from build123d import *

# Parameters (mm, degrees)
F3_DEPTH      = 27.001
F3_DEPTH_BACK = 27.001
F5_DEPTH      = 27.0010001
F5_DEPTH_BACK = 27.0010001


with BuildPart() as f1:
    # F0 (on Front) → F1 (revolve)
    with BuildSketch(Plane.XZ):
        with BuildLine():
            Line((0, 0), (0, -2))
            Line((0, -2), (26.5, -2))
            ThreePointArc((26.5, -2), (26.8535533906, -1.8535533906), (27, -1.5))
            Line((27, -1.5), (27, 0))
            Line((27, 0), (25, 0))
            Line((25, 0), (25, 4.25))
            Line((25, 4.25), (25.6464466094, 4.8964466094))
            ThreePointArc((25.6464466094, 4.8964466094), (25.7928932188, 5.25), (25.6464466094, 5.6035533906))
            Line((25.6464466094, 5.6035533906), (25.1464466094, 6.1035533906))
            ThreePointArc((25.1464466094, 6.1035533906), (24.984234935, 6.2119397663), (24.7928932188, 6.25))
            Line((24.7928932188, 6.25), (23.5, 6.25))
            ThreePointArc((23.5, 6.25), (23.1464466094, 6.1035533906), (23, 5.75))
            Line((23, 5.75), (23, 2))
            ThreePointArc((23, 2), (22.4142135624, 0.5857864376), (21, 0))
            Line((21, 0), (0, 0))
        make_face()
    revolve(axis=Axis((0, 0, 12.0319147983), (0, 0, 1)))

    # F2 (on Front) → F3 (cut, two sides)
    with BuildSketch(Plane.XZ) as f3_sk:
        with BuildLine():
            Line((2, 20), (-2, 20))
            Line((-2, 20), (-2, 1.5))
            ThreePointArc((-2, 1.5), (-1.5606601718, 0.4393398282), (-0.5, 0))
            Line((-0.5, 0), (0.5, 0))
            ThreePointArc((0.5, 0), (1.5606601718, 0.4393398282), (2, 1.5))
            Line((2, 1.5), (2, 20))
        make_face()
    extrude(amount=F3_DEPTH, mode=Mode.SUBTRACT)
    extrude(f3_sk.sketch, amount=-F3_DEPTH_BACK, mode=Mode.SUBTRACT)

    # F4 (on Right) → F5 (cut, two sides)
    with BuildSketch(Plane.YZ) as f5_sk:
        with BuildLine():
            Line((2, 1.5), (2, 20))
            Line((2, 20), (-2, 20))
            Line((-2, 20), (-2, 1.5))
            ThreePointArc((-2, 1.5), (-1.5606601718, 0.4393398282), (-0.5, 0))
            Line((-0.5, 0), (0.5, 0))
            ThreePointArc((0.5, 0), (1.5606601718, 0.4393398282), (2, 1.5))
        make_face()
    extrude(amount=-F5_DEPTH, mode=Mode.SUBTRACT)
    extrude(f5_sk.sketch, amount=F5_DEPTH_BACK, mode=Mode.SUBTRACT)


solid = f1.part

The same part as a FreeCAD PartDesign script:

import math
import FreeCAD as App
import Part
import Sketcher
from FreeCAD import Vector

doc = App.newDocument("Part")
body = doc.addObject("PartDesign::Body", "Body")

sketch1 = body.newObject("Sketcher::SketchObject", "Sketch")
sketch1.AttachmentSupport = (doc.getObject("XZ_Plane"), [""])
sketch1.MapMode = "FlatFace"
sketch1.addGeometry(Part.LineSegment(Vector(0, 0, 0), Vector(0, -2, 0)), False)
sketch1.addGeometry(Part.LineSegment(Vector(0, -2, 0), Vector(26.5, -2, 0)), False)
sketch1.addGeometry(Part.ArcOfCircle(Part.Circle(Vector(26.5, -1.5, 0), Vector(0, 0, 1), 0.5), math.radians(-90), math.radians(0)), False)
sketch1.addGeometry(Part.LineSegment(Vector(27, -1.5, 0), Vector(27, 0, 0)), False)
sketch1.addGeometry(Part.LineSegment(Vector(27, 0, 0), Vector(25, 0, 0)), False)
sketch1.addGeometry(Part.LineSegment(Vector(25, 0, 0), Vector(25, 4.25, 0)), False)
sketch1.addGeometry(Part.LineSegment(Vector(25, 4.25, 0), Vector(25.65, 4.9, 0)), False)
sketch1.addGeometry(Part.ArcOfCircle(Part.Circle(Vector(25.29, 5.25, 0), Vector(0, 0, 1), 0.5), math.radians(-45), math.radians(45)), False)
sketch1.addGeometry(Part.LineSegment(Vector(25.65, 5.6, 0), Vector(25.15, 6.1, 0)), False)
sketch1.addGeometry(Part.ArcOfCircle(Part.Circle(Vector(24.79, 5.75, 0), Vector(0, 0, 1), 0.5), math.radians(45), math.radians(90)), False)
sketch1.addGeometry(Part.LineSegment(Vector(24.79, 6.25, 0), Vector(23.5, 6.25, 0)), False)
sketch1.addGeometry(Part.ArcOfCircle(Part.Circle(Vector(23.5, 5.75, 0), Vector(0, 0, 1), 0.5), math.radians(90), math.radians(180)), False)
sketch1.addGeometry(Part.LineSegment(Vector(23, 5.75, 0), Vector(23, 2, 0)), False)
sketch1.addGeometry(Part.ArcOfCircle(Part.Circle(Vector(21, 2, 0), Vector(0, 0, 1), 2), math.radians(-90), math.radians(0)), False)
sketch1.addGeometry(Part.LineSegment(Vector(21, 0, 0), Vector(0, 0, 0)), False)
sketch1.addConstraint(Sketcher.Constraint("Coincident", 0, 2, 1, 1))
sketch1.addConstraint(Sketcher.Constraint("Tangent", 1, 2, 2, 1))
sketch1.addConstraint(Sketcher.Constraint("Tangent", 2, 2, 3, 1))
sketch1.addConstraint(Sketcher.Constraint("Coincident", 3, 2, 4, 1))
sketch1.addConstraint(Sketcher.Constraint("Coincident", 4, 2, 5, 1))
sketch1.addConstraint(Sketcher.Constraint("Coincident", 5, 2, 6, 1))
sketch1.addConstraint(Sketcher.Constraint("Tangent", 6, 2, 7, 1))
sketch1.addConstraint(Sketcher.Constraint("Tangent", 7, 2, 8, 1))
sketch1.addConstraint(Sketcher.Constraint("Tangent", 8, 2, 9, 1))
sketch1.addConstraint(Sketcher.Constraint("Tangent", 9, 2, 10, 1))
sketch1.addConstraint(Sketcher.Constraint("Tangent", 10, 2, 11, 1))
sketch1.addConstraint(Sketcher.Constraint("Tangent", 11, 2, 12, 1))
sketch1.addConstraint(Sketcher.Constraint("Tangent", 12, 2, 13, 2))
sketch1.addConstraint(Sketcher.Constraint("Tangent", 13, 1, 14, 1))
sketch1.addConstraint(Sketcher.Constraint("Coincident", 14, 2, 0, 1))
sketch1.addConstraint(Sketcher.Constraint("Vertical", 0))
sketch1.addConstraint(Sketcher.Constraint("Horizontal", 1))
sketch1.addConstraint(Sketcher.Constraint("Vertical", 3))
sketch1.addConstraint(Sketcher.Constraint("Horizontal", 4))
sketch1.addConstraint(Sketcher.Constraint("Vertical", 5))
sketch1.addConstraint(Sketcher.Constraint("Horizontal", 10))
sketch1.addConstraint(Sketcher.Constraint("Vertical", 12))
sketch1.addConstraint(Sketcher.Constraint("Horizontal", 14))
sketch1.addConstraint(Sketcher.Constraint("Coincident", 14, 2, -1, 1))
sketch1.addConstraint(Sketcher.Constraint("Equal", 2, 7))
sketch1.addConstraint(Sketcher.Constraint("Equal", 7, 9))
sketch1.addConstraint(Sketcher.Constraint("Equal", 9, 11))
sketch1.addConstraint(Sketcher.Constraint("PointOnObject", 3, 2, -1))
sketch1.addConstraint(Sketcher.Constraint("Perpendicular", 6, 8))
sketch1.addConstraint(Sketcher.Constraint("Vertical", 6, 2, 7, 2))
sketch1.addConstraint(Sketcher.Constraint("Equal", 4, 0))
sketch1.addConstraint(Sketcher.Constraint("Radius", 13, 2.0))
sketch1.addConstraint(Sketcher.Constraint("Radius", 2, 0.5))
sketch1.addConstraint(Sketcher.Constraint("DistanceX", 4, 2, 4, 1, 2.0))
sketch1.addConstraint(Sketcher.Constraint("DistanceX", 14, 2, 14, 1, 21.0))
sketch1.addConstraint(Sketcher.Constraint("DistanceX", 1, 1, 1, 2, 26.5))
sketch1.addConstraint(Sketcher.Constraint("DistanceY", 5, 2, 7, 3, 1.0))
sketch1.addConstraint(Sketcher.Constraint("DistanceY", 7, 3, 9, 2, 1.0))
sketch1.addConstraint(Sketcher.Constraint("DistanceY", 5, 1, 5, 2, 4.25))
revolution = body.newObject("PartDesign::Revolution", "Revolution")
revolution.Profile = sketch1
revolution.ReferenceAxis = (sketch1, ["V_Axis"])
revolution.Angle = 360

sketch2 = body.newObject("Sketcher::SketchObject", "Sketch001")
sketch2.AttachmentSupport = (doc.getObject("XZ_Plane"), [""])
sketch2.MapMode = "FlatFace"
sketch2.addGeometry(Part.LineSegment(Vector(2, 20, 0), Vector(-2, 20, 0)), False)
sketch2.addGeometry(Part.LineSegment(Vector(-2, 20, 0), Vector(-2, 1.5, 0)), False)
sketch2.addGeometry(Part.ArcOfCircle(Part.Circle(Vector(-0.5, 1.5, 0), Vector(0, 0, 1), 1.5), math.radians(180), math.radians(270)), False)
sketch2.addGeometry(Part.LineSegment(Vector(-0.5, 0, 0), Vector(0.5, 0, 0)), False)
sketch2.addGeometry(Part.ArcOfCircle(Part.Circle(Vector(0.5, 1.5, 0), Vector(0, 0, 1), 1.5), math.radians(-90), math.radians(0)), False)
sketch2.addGeometry(Part.LineSegment(Vector(2, 1.5, 0), Vector(2, 20, 0)), False)
sketch2.addConstraint(Sketcher.Constraint("Coincident", 0, 2, 1, 1))
sketch2.addConstraint(Sketcher.Constraint("Tangent", 1, 2, 2, 1))
sketch2.addConstraint(Sketcher.Constraint("Tangent", 2, 2, 3, 1))
sketch2.addConstraint(Sketcher.Constraint("Tangent", 3, 2, 4, 1))
sketch2.addConstraint(Sketcher.Constraint("Tangent", 4, 2, 5, 1))
sketch2.addConstraint(Sketcher.Constraint("Coincident", 5, 2, 0, 1))
sketch2.addConstraint(Sketcher.Constraint("Horizontal", 0))
sketch2.addConstraint(Sketcher.Constraint("Vertical", 1))
sketch2.addConstraint(Sketcher.Constraint("Horizontal", 3))
sketch2.addConstraint(Sketcher.Constraint("Vertical", 5))
sketch2.addConstraint(Sketcher.Constraint("Equal", 2, 4))
sketch2.addConstraint(Sketcher.Constraint("Symmetric", 2, 2, 3, 2, -1, 1))
sketch2.addConstraint(Sketcher.Constraint("Radius", 2, 1.5))
sketch2.addConstraint(Sketcher.Constraint("DistanceX", 0, 2, 0, 1, 4.0))
sketch2.addConstraint(Sketcher.Constraint("DistanceY", 1, 2, 1, 1, 18.5))
pocket1 = body.newObject("PartDesign::Pocket", "Pocket")
pocket1.Profile = sketch2
pocket1.Type = "ThroughAll"
pocket1.Midplane = True

sketch3 = body.newObject("Sketcher::SketchObject", "Sketch002")
sketch3.AttachmentSupport = (doc.getObject("YZ_Plane"), [""])
sketch3.MapMode = "FlatFace"
sketch3.addGeometry(Part.LineSegment(Vector(2, 1.5, 0), Vector(2, 20, 0)), False)
sketch3.addGeometry(Part.LineSegment(Vector(2, 20, 0), Vector(-2, 20, 0)), False)
sketch3.addGeometry(Part.LineSegment(Vector(-2, 20, 0), Vector(-2, 1.5, 0)), False)
sketch3.addGeometry(Part.ArcOfCircle(Part.Circle(Vector(-0.5, 1.5, 0), Vector(0, 0, 1), 1.5), math.radians(180), math.radians(270)), False)
sketch3.addGeometry(Part.LineSegment(Vector(-0.5, 0, 0), Vector(0.5, 0, 0)), False)
sketch3.addGeometry(Part.ArcOfCircle(Part.Circle(Vector(0.5, 1.5, 0), Vector(0, 0, 1), 1.5), math.radians(-90), math.radians(0)), False)
sketch3.addConstraint(Sketcher.Constraint("Coincident", 0, 2, 1, 1))
sketch3.addConstraint(Sketcher.Constraint("Coincident", 1, 2, 2, 1))
sketch3.addConstraint(Sketcher.Constraint("Tangent", 2, 2, 3, 1))
sketch3.addConstraint(Sketcher.Constraint("Tangent", 3, 2, 4, 1))
sketch3.addConstraint(Sketcher.Constraint("Tangent", 4, 2, 5, 1))
sketch3.addConstraint(Sketcher.Constraint("Tangent", 5, 2, 0, 1))
sketch3.addConstraint(Sketcher.Constraint("Vertical", 0))
sketch3.addConstraint(Sketcher.Constraint("Horizontal", 1))
sketch3.addConstraint(Sketcher.Constraint("Vertical", 2))
sketch3.addConstraint(Sketcher.Constraint("Horizontal", 4))
sketch3.addConstraint(Sketcher.Constraint("Equal", 3, 5))
sketch3.addConstraint(Sketcher.Constraint("Symmetric", 3, 2, 4, 2, -1, 1))
sketch3.addConstraint(Sketcher.Constraint("Radius", 3, 1.5))
sketch3.addConstraint(Sketcher.Constraint("DistanceX", 1, 2, 1, 1, 4.0))
sketch3.addConstraint(Sketcher.Constraint("DistanceY", 0, 1, 0, 2, 18.5))
pocket2 = body.newObject("PartDesign::Pocket", "Pocket001")
pocket2.Profile = sketch3
pocket2.Type = "ThroughAll"
pocket2.Midplane = True

doc.recompute()
